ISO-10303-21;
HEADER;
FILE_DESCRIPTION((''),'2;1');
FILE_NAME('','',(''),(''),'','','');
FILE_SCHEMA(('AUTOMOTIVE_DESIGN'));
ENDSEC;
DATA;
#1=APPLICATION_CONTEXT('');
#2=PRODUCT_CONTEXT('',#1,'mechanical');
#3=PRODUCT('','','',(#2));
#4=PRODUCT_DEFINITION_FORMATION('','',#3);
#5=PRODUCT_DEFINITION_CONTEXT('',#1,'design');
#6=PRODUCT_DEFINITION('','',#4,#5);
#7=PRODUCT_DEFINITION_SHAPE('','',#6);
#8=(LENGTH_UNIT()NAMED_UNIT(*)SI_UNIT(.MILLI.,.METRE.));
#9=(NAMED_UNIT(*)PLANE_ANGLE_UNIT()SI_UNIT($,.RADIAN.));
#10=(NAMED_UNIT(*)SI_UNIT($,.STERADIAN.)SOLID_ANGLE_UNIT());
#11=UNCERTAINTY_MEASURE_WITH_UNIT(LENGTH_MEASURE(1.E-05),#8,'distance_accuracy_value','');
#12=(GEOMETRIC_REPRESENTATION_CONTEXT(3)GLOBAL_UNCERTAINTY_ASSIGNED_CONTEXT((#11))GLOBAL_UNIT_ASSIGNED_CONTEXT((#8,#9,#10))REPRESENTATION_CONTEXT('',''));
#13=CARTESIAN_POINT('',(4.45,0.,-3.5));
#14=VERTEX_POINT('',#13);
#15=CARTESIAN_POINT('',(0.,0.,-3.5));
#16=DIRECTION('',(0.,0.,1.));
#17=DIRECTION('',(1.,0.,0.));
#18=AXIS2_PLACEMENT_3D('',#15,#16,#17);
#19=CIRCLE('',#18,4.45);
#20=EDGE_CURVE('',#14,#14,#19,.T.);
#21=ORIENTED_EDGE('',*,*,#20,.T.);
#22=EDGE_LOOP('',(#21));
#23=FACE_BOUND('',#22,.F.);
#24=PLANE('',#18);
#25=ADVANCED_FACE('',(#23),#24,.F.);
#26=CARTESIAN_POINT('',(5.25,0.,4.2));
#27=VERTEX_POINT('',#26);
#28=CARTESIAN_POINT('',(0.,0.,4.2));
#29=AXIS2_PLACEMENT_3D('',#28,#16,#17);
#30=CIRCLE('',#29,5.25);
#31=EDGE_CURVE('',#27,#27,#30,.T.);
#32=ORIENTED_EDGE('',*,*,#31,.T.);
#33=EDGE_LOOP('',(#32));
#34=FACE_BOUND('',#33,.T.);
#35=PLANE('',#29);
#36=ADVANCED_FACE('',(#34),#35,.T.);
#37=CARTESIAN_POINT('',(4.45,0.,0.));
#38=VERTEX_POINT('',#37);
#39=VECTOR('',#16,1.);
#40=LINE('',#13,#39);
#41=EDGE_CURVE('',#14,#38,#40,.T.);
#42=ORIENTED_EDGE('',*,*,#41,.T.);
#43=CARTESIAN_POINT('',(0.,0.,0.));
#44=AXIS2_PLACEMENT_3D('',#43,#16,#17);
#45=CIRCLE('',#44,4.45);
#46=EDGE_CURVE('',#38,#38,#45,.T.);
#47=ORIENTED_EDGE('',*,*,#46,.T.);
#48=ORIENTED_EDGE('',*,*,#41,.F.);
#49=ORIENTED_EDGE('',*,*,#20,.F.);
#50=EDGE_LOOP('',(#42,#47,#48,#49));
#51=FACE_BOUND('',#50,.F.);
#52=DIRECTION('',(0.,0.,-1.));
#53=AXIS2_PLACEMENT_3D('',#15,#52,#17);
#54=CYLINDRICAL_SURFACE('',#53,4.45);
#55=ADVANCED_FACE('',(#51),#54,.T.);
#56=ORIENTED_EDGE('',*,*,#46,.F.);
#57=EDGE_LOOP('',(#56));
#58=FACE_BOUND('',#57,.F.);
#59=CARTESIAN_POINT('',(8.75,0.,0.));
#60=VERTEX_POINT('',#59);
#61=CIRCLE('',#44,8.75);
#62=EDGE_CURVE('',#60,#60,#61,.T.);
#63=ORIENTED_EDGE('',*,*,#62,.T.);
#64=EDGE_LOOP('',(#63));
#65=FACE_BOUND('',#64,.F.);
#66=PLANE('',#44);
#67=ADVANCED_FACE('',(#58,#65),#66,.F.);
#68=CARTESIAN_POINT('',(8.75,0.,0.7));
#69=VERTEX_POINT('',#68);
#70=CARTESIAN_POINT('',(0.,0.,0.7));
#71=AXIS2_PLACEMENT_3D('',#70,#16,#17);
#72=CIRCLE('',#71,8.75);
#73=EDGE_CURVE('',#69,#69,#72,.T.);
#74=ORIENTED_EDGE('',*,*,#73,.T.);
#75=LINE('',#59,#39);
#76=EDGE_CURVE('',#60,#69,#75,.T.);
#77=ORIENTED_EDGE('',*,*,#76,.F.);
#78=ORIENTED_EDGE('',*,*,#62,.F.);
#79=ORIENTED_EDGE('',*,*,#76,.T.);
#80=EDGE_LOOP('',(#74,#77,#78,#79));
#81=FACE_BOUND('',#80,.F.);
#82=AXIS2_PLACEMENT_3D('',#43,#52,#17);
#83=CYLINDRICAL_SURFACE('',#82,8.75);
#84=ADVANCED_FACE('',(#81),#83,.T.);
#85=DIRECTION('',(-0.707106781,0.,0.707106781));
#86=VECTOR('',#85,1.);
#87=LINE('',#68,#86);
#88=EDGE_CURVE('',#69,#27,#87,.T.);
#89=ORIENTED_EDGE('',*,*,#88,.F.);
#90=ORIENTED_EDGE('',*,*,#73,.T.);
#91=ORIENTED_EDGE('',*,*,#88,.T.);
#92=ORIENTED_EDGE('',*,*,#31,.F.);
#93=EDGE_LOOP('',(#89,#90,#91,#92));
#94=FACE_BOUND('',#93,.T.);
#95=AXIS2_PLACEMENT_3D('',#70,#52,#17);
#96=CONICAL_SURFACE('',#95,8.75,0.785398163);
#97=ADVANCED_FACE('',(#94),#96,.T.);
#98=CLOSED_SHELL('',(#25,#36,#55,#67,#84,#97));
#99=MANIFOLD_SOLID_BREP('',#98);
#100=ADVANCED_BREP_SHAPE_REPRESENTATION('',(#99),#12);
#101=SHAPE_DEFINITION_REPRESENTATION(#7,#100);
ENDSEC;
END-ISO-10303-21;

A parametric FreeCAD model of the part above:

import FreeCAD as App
import Part
import Sketcher
from FreeCAD import Vector
Q = App.Units.Quantity


def edges_at(feature, points):
    """Names of the edges that pass closest to the given points."""
    edges = feature.Shape.Edges
    near = lambda p: min(range(len(edges)), key=lambda i: edges[i].distToShape(Part.Vertex(*p))[0])
    return sorted({f"Edge{near(p) + 1}" for p in points})

doc = App.newDocument("Part")
body = doc.addObject("PartDesign::Body", "Body")

# Sketch on XY plane
sketch1 = body.newObject("Sketcher::SketchObject", "Sketch")
sketch1.AttachmentSupport = (doc.getObject("XY_Plane"), [""])
sketch1.MapMode = "FlatFace"
sketch1.addGeometry(Part.Circle(Vector(0, 0, 0), Vector(0, 0, 1), 9), False)
sketch1.addConstraint([
    Sketcher.Constraint("Coincident", 0, 3, -1, 1),
    Sketcher.Constraint("Diameter", 0, Q("17.5 mm")),
])
pad1 = body.newObject("PartDesign::Pad", "Pad")
pad1.Profile = sketch1
pad1.Length = 4.2
body2 = doc.addObject("PartDesign::Body", "Body001")

# Sketch on XY plane
sketch2 = body2.newObject("Sketcher::SketchObject", "Sketch001")
sketch2.AttachmentSupport = (doc.getObject("XY_Plane001"), [""])
sketch2.MapMode = "FlatFace"
sketch2.AttachmentOffset = App.Placement(Vector(0, 0, -3.5), App.Rotation())
sketch2.addGeometry(Part.Circle(Vector(0, 0, 0), Vector(0, 0, 1), 4.5), False)
sketch2.addConstraint([
    Sketcher.Constraint("Coincident", 0, 3, -1, 1),
    Sketcher.Constraint("Diameter", 0, Q("8.9 mm")),
])
pad2 = body2.newObject("PartDesign::Pad", "Pad001")
pad2.Profile = sketch2
pad2.Length = 3.5
doc.recompute()

boolean = body2.newObject("PartDesign::Boolean", "Boolean")
boolean.Type = "Fuse"
boolean.addObjects([body])
doc.recompute()

chamfer = body2.newObject("PartDesign::Chamfer", "Chamfer")
chamfer.Base = (boolean, edges_at(boolean, [(-8.75, 0, 4.2)]))
chamfer.Size = 3.5

doc.recompute()
